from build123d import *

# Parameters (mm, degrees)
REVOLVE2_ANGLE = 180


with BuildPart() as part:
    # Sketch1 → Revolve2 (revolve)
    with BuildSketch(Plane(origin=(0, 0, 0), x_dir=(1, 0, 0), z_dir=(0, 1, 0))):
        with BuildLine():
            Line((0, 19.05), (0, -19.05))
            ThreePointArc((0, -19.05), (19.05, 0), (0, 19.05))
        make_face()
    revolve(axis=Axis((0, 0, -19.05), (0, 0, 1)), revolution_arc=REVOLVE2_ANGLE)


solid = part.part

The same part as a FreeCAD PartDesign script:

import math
import FreeCAD as App
import Part
import Sketcher
from FreeCAD import Vector
Q = App.Units.Quantity

doc = App.newDocument("Part")
body = doc.addObject("PartDesign::Body", "Body")

# Sketch on XZ plane
sketch1 = doc.addObject("Sketcher::SketchObject", "Sketch")
body.addObject(sketch1)
sketch1.AttachmentSupport = (doc.XZ_Plane, [""])
sketch1.MapMode = "FlatFace"
sketch1.addGeometry([
    Part.LineSegment(Vector(0, -19, 0), Vector(0, 19, 0)),
    Part.ArcOfCircle(Part.Circle(Vector(0, 0, 0), Vector(0, 0, 1), 19), math.radians(-90), math.radians(90)),
], False)
sketch1.addConstraint([
    Sketcher.Constraint("Coincident", 0, 1, 1, 1),
    Sketcher.Constraint("Coincident", 1, 2, 0, 2),
    Sketcher.Constraint("Vertical", 0),
    Sketcher.Constraint("Coincident", 1, 3, -1, 1),
    Sketcher.Constraint("PointOnObject", 0, 1, -2),
    Sketcher.Constraint("Radius", 1, Q("0.75 in")),
])
revolution = doc.addObject("PartDesign::Revolution", "Revolution")
body.addObject(revolution)
revolution.Profile = sketch1
revolution.ReferenceAxis = (sketch1, ["V_Axis"])
revolution.Angle = 180

doc.recompute()
